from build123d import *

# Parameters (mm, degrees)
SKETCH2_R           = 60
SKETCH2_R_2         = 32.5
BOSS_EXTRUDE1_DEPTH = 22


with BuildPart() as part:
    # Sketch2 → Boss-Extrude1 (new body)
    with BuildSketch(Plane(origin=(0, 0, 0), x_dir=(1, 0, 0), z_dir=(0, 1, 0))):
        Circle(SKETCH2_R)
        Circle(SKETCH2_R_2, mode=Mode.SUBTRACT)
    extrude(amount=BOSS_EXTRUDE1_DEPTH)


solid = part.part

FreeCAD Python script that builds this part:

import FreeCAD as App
import Part
import Sketcher

V = App.Vector

doc = App.newDocument("Part")
body = doc.addObject("PartDesign::Body", "Body")

# Sketch on XZ plane
sketch1 = body.newObject("Sketcher::SketchObject", "Sketch")
sketch1.AttachmentSupport = (doc.getObject("XZ_Plane"), [""])
sketch1.MapMode = "FlatFace"
sketch1.addGeometry(Part.Circle(V(0, 0, 0), V(0, 0, 1), 60), False)
sketch1.addGeometry(Part.Circle(V(0, 0, 0), V(0, 0, 1), 32), False)
sketch1.addConstraint(Sketcher.Constraint("Coincident", 0, 3, -1, 1))
sketch1.addConstraint(Sketcher.Constraint("Coincident", 1, 3, -1, 1))
sketch1.addConstraint(Sketcher.Constraint("Diameter", 0, 120.0))
sketch1.addConstraint(Sketcher.Constraint("Diameter", 1, 65.0))
pad1 = body.newObject("PartDesign::Pad", "Pad")
pad1.Profile = sketch1
pad1.Length = 22
pad1.Reversed = True

doc.recompute()
